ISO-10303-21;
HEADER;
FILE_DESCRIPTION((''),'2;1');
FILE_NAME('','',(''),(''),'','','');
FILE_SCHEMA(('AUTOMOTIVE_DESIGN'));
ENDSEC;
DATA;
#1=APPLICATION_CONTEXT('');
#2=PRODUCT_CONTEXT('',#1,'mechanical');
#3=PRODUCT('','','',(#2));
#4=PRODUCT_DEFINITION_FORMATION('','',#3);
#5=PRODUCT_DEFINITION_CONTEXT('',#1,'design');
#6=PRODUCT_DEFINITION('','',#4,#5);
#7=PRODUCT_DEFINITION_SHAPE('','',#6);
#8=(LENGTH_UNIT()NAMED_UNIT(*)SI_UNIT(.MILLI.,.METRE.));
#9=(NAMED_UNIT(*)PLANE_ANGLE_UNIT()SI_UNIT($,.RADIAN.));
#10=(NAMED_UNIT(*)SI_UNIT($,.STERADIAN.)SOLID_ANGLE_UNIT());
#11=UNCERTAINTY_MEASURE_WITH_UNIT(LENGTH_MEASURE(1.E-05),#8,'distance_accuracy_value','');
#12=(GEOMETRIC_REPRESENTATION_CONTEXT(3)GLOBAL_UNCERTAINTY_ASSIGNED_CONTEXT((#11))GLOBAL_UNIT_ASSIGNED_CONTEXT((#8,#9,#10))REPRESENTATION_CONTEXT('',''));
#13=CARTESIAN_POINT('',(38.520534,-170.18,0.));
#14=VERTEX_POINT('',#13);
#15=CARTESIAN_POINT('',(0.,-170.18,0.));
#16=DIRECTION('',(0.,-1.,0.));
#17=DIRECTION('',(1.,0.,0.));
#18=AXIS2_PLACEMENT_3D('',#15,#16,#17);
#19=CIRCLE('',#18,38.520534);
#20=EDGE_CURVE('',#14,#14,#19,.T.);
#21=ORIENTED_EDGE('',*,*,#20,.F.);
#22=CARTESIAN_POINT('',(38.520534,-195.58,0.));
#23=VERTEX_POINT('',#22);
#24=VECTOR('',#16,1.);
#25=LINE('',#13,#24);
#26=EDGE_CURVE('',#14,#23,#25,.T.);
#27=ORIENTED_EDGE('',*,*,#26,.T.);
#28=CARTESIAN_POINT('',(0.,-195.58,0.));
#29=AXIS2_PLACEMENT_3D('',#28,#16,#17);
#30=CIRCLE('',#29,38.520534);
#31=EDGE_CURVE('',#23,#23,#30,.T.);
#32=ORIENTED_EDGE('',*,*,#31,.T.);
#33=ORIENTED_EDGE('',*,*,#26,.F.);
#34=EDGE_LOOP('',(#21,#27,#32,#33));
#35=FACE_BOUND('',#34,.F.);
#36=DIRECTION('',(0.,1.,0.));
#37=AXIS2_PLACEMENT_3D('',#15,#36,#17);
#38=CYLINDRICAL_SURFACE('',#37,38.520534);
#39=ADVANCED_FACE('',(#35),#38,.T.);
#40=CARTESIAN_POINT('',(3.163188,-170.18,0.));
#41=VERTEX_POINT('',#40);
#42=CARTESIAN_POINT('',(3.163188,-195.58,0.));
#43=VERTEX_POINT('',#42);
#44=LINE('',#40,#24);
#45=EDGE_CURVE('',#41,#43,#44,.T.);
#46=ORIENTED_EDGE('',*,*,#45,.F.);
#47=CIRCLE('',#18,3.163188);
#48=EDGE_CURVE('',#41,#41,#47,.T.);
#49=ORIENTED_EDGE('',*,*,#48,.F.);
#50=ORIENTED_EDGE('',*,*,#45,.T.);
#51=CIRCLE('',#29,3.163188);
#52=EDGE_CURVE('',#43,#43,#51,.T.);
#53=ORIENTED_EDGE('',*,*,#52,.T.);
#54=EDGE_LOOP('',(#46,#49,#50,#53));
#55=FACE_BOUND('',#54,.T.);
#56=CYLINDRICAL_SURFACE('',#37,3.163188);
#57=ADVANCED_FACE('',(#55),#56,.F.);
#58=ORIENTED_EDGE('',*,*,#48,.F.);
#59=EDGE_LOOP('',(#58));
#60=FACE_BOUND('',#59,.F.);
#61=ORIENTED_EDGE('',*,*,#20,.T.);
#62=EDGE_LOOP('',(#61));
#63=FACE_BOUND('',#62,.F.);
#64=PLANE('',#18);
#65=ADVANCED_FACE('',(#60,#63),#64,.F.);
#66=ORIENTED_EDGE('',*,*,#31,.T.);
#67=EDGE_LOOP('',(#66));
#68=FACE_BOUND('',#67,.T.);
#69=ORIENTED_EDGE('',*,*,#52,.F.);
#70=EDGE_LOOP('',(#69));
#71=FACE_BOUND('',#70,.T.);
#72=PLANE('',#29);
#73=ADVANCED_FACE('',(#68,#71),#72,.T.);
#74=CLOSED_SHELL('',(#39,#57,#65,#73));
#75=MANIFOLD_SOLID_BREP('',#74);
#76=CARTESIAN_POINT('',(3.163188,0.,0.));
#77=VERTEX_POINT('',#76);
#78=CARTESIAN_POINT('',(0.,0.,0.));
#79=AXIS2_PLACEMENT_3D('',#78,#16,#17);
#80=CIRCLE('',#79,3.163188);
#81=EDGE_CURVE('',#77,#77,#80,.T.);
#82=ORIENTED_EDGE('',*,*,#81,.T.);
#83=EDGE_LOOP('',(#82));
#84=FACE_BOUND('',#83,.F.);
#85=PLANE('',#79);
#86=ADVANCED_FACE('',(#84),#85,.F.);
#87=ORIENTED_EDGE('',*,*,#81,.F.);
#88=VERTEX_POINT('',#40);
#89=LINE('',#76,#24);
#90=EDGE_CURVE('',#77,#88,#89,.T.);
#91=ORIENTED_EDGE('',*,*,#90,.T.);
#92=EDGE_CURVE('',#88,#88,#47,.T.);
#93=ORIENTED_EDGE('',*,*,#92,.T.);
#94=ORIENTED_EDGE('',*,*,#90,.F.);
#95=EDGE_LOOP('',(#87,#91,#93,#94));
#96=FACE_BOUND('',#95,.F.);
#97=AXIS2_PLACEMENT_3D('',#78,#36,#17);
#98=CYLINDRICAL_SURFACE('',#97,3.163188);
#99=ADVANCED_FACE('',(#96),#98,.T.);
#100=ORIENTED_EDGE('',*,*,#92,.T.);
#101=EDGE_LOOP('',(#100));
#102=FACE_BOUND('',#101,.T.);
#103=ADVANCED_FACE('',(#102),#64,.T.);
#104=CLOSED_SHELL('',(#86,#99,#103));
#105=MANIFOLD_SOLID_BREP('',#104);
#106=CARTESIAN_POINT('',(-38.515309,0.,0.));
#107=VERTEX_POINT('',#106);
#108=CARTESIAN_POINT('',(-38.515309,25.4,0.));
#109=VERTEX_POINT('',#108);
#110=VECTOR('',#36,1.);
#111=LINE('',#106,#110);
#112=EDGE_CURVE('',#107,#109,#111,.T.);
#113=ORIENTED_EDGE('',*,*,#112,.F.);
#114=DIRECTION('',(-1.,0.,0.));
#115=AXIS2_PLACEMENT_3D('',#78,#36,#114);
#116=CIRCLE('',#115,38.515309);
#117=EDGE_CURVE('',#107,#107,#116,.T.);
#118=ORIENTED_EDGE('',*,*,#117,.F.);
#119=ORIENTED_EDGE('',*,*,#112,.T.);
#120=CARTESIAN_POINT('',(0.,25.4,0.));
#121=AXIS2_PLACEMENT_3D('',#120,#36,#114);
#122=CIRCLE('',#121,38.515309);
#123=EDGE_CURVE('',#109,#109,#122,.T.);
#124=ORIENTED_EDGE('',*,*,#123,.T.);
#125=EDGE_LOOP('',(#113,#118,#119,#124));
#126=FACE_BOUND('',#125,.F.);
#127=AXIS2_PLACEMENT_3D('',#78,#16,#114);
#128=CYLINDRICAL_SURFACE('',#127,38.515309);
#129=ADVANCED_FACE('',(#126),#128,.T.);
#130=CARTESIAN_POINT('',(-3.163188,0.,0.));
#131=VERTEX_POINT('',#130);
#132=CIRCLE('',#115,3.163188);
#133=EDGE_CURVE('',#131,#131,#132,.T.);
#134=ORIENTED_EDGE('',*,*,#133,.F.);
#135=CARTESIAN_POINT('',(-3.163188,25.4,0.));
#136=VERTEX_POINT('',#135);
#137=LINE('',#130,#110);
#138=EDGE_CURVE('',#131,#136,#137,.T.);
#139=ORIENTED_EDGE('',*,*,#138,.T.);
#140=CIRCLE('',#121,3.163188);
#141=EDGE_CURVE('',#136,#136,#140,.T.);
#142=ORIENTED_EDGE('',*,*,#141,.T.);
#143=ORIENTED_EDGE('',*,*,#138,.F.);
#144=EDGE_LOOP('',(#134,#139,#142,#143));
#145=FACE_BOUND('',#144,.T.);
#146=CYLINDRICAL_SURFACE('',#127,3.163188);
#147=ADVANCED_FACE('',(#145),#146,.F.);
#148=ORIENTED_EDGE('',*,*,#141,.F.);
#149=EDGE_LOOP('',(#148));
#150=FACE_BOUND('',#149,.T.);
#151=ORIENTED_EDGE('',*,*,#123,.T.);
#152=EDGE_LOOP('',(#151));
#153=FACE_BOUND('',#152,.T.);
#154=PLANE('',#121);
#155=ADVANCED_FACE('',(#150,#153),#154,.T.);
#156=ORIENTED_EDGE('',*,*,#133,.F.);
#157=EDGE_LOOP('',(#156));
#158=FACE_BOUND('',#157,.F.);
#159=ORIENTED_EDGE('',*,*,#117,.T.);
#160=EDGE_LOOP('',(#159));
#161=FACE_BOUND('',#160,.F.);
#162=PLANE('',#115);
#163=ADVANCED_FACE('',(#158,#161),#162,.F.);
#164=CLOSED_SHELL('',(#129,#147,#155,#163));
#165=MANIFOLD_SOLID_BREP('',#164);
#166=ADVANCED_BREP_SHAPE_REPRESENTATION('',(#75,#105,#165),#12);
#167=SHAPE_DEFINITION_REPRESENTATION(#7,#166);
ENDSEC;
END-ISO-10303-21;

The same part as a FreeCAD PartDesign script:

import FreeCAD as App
import Part
import Sketcher
Q = App.Units.Quantity

doc = App.newDocument("Part")
body = doc.addObject("PartDesign::Body", "Body")

sketch1 = body.newObject("Sketcher::SketchObject", "Sketch")
sketch1.AttachmentSupport = (doc.getObject("XZ_Plane"), [""])
sketch1.MapMode = "FlatFace"
sketch1.addGeometry(Part.Circle(App.Vector(0, 0, 0), App.Vector(0, 0, 1), 3.163188), False)
sketch1.addConstraint(Sketcher.Constraint("Coincident", 0, 3, -1, 1))
sketch1.addConstraint(Sketcher.Constraint("Diameter", 0, 6.326377))
pad1 = body.newObject("PartDesign::Pad", "Pad")
pad1.Profile = sketch1
pad1.Length = Q("6.7 in")
body2 = doc.addObject("PartDesign::Body", "Body001")

sketch2 = body2.newObject("Sketcher::SketchObject", "Sketch001")
sketch2.AttachmentSupport = (doc.getObject("XZ_Plane001"), [""])
sketch2.MapMode = "FlatFace"
sketch2.addGeometry(Part.Circle(App.Vector(0, 0, 0), App.Vector(0, 0, 1), 38.515309), False)
sketch2.addGeometry(Part.Circle(App.Vector(0, 0, 0), App.Vector(0, 0, 1), 3.163188), False)
sketch2.addConstraint(Sketcher.Constraint("Coincident", 0, 3, -1, 1))
sketch2.addConstraint(Sketcher.Constraint("Coincident", 1, 3, -1, 1))
sketch2.addConstraint(Sketcher.Constraint("Diameter", 0, 77.030618))
sketch2.addConstraint(Sketcher.Constraint("Diameter", 1, 6.326377))
pad2 = body2.newObject("PartDesign::Pad", "Pad001")
pad2.Profile = sketch2
pad2.Length = Q("1 in")
pad2.Reversed = True
body3 = doc.addObject("PartDesign::Body", "Body002")

sketch3 = body3.newObject("Sketcher::SketchObject", "Sketch002")
sketch3.AttachmentSupport = (doc.getObject("XZ_Plane002"), [""])
sketch3.MapMode = "FlatFace"
sketch3.AttachmentOffset = App.Placement(App.Vector(0, 0, 6.7 * 25.4), App.Rotation())
sketch3.addGeometry(Part.Circle(App.Vector(0, 0, 0), App.Vector(0, 0, 1), 38.520534), False)
sketch3.addGeometry(Part.Circle(App.Vector(0, 0, 0), App.Vector(0, 0, 1), 3.163188), False)
sketch3.addConstraint(Sketcher.Constraint("Coincident", 0, 3, -1, 1))
sketch3.addConstraint(Sketcher.Constraint("Coincident", 1, 3, -1, 1))
sketch3.addConstraint(Sketcher.Constraint("Diameter", 0, 77.041068))
sketch3.addConstraint(Sketcher.Constraint("Diameter", 1, 6.326377))
pad3 = body3.newObject("PartDesign::Pad", "Pad002")
pad3.Profile = sketch3
pad3.Length = Q("1 in")

doc.recompute()
